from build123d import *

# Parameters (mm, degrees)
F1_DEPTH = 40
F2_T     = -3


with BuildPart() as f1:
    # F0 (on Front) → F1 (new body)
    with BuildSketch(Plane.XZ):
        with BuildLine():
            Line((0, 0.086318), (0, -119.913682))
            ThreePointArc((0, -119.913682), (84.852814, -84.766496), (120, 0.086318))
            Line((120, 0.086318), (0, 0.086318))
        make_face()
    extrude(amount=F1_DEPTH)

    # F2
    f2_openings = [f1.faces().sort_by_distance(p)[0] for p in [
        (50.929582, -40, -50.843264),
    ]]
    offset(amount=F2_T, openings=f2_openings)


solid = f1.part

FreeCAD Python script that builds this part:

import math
import FreeCAD as App
import Part
import Sketcher
Q = App.Units.Quantity


def faces_at(feature, points):
    """Names of the faces that lie closest to the given points."""
    faces = feature.Shape.Faces
    near = lambda p: min(range(len(faces)), key=lambda i: faces[i].distToShape(Part.Vertex(*p))[0])
    return sorted({f"Face{near(p) + 1}" for p in points})

doc = App.newDocument("Part")
body = doc.addObject("PartDesign::Body", "Body")

# Sketch on XZ plane
sketch1 = body.newObject("Sketcher::SketchObject", "Sketch")
sketch1.AttachmentSupport = (doc.getObject("XZ_Plane"), [""])
sketch1.MapMode = "FlatFace"
sketch1.addGeometry(Part.LineSegment(App.Vector(0, 0, 0), App.Vector(0, -120, 0)), False)
sketch1.addGeometry(Part.ArcOfCircle(Part.Circle(App.Vector(0, 0, 0), App.Vector(0, 0, 1), 120), math.radians(-90), math.radians(0)), False)
sketch1.addGeometry(Part.LineSegment(App.Vector(120, 0, 0), App.Vector(0, 0, 0)), False)
sketch1.addConstraint(Sketcher.Constraint("Coincident", 0, 2, 1, 1))
sketch1.addConstraint(Sketcher.Constraint("Coincident", 1, 2, 2, 1))
sketch1.addConstraint(Sketcher.Constraint("Coincident", 2, 2, 0, 1))
sketch1.addConstraint(Sketcher.Constraint("Vertical", 0))
sketch1.addConstraint(Sketcher.Constraint("Horizontal", 2))
sketch1.addConstraint(Sketcher.Constraint("Coincident", 2, 2, 1, 3))
sketch1.addConstraint(Sketcher.Constraint("PointOnObject", 1, 3, -2))
sketch1.addConstraint(Sketcher.Constraint("Radius", 1, Q("119.999999 mm")))
sketch1.addConstraint(Sketcher.Constraint("DistanceY", 0, 2, -1, 1, Q("119.913682 mm")))
pad1 = body.newObject("PartDesign::Pad", "Pad")
pad1.Profile = sketch1
pad1.Length = 40
doc.recompute()

thickness = body.newObject("PartDesign::Thickness", "Thickness")
thickness.Base = (pad1, faces_at(pad1, [(60, -40, -59.914)]))
thickness.Value = 3
thickness.Reversed = True
thickness.Join = "Arc"

doc.recompute()
